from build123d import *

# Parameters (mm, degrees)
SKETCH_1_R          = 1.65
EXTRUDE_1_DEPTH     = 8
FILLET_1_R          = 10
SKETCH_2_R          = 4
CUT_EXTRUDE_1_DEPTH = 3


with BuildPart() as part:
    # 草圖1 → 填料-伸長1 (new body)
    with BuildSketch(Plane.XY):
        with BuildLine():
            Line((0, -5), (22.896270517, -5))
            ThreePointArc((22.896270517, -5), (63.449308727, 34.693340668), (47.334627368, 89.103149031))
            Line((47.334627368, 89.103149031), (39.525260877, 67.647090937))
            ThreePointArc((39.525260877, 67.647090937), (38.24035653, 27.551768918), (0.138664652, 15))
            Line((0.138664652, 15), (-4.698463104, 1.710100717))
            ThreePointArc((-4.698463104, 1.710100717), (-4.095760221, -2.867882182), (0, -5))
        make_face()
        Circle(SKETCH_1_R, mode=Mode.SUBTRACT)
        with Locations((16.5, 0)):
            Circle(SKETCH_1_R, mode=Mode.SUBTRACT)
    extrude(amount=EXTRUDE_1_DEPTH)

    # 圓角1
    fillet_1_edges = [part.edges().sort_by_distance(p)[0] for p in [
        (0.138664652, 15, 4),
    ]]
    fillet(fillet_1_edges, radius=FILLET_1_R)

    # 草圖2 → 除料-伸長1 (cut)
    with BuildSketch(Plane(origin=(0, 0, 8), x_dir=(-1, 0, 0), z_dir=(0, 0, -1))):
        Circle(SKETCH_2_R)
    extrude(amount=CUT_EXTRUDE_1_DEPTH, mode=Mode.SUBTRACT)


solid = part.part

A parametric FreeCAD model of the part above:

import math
import FreeCAD as App
import Part
import Sketcher

V = App.Vector
Q = App.Units.Quantity


def edges_at(feature, points):
    """Names of the edges that pass closest to the given points."""
    edges = feature.Shape.Edges
    near = lambda p: min(range(len(edges)), key=lambda i: edges[i].distToShape(Part.Vertex(*p))[0])
    return sorted({f"Edge{near(p) + 1}" for p in points})

doc = App.newDocument("Part")
params = doc.addObject("Spreadsheet::Sheet", "Params")
for row, (alias, value) in enumerate([
    ("sketch1_radius", "55 mm"),
    ("sketch1_radius2", "35 mm"),
    ("sketch1_radius3", "5 mm"),
    ("sketch1_diameter", "3.3 mm"),
    ("pad1_length", "8 mm"),
    ("fillet_radius", "10 mm"),
    ("sketch2_diameter", "8 mm"),
    ("pocket1_length", "3 mm"),
], start=1):
    params.set(f"A{row}", alias)
    params.set(f"B{row}", "=" + value)
    params.setAlias(f"B{row}", alias)

body = doc.addObject("PartDesign::Body", "Body")

# Sketch on XY plane
sketch1 = doc.addObject("Sketcher::SketchObject", "Sketch")
body.addObject(sketch1)
sketch1.AttachmentSupport = (doc.XY_Plane, [""])
sketch1.MapMode = "FlatFace"
sketch1.addGeometry(Part.LineSegment(V(0, -5, 0), V(22.9, -5, 0)), False)
sketch1.addGeometry(Part.ArcOfCircle(Part.Circle(V(10.2, 48.5, 0), V(0, 0, 1), 55), math.radians(-77), math.radians(48)), False)
sketch1.addGeometry(Part.LineSegment(V(47.3, 89.1, 0), V(39.5, 67.6, 0)), False)
sketch1.addGeometry(Part.ArcOfCircle(Part.Circle(V(10.2, 48.5, 0), V(0, 0, 1), 35), math.radians(-107), math.radians(33)), False)
sketch1.addGeometry(Part.LineSegment(V(0.1, 15, 0), V(-4.7, 1.7, 0)), False)
sketch1.addGeometry(Part.ArcOfCircle(Part.Circle(V(0, 0, 0), V(0, 0, 1), 5), math.radians(160), math.radians(270)), False)
sketch1.addGeometry(Part.Circle(V(0, 0, 0), V(0, 0, 1), 1.6), False)
sketch1.addGeometry(Part.Circle(V(16.5, 0, 0), V(0, 0, 1), 1.6), False)
sketch1.addConstraint(Sketcher.Constraint("Coincident", 0, 2, 1, 1))
sketch1.addConstraint(Sketcher.Constraint("Coincident", 1, 2, 2, 1))
sketch1.addConstraint(Sketcher.Constraint("Coincident", 2, 2, 3, 2))
sketch1.addConstraint(Sketcher.Constraint("Coincident", 3, 1, 4, 1))
sketch1.addConstraint(Sketcher.Constraint("Tangent", 4, 2, 5, 1))
sketch1.addConstraint(Sketcher.Constraint("Tangent", 5, 2, 0, 1))
sketch1.addConstraint(Sketcher.Constraint("Horizontal", 0))
sketch1.addConstraint(Sketcher.Constraint("Coincident", 5, 3, -1, 1))
sketch1.addConstraint(Sketcher.Constraint("Coincident", 6, 3, -1, 1))
sketch1.addConstraint(Sketcher.Constraint("Coincident", 3, 3, 1, 3))
sketch1.addConstraint(Sketcher.Constraint("Equal", 6, 7))
sketch1.addConstraint(Sketcher.Constraint("PointOnObject", 7, 3, -1))
sketch1.addConstraint(Sketcher.Constraint("Parallel", 2, 4))
sketch1.addConstraint(Sketcher.Constraint("Radius", 1, 55.0))
sketch1.addConstraint(Sketcher.Constraint("Radius", 3, 35.0))
sketch1.addConstraint(Sketcher.Constraint("Radius", 5, 5.0))
sketch1.addConstraint(Sketcher.Constraint("Diameter", 6, 3.3))
sketch1.addConstraint(Sketcher.Constraint("Angle", 2, Q("-110 deg")))
sketch1.addConstraint(Sketcher.Constraint("DistanceY", -1, 1, 3, 1, 15.0))
sketch1.addConstraint(Sketcher.Constraint("DistanceX", -1, 1, 7, 3, 16.5))
sketch1.addConstraint(Sketcher.Constraint("DistanceX", 0, 1, 0, 2, 22.896271))
sketch1.addConstraint(Sketcher.Constraint("Distance", 2, 22.83306))
sketch1.setExpression("Constraints[13]", "Params.sketch1_radius")
sketch1.setExpression("Constraints[14]", "Params.sketch1_radius2")
sketch1.setExpression("Constraints[15]", "Params.sketch1_radius3")
sketch1.setExpression("Constraints[16]", "Params.sketch1_diameter")
pad1 = doc.addObject("PartDesign::Pad", "Pad")
body.addObject(pad1)
pad1.Profile = sketch1
pad1.setExpression("Length", "Params.pad1_length")
doc.recompute()

fillet = doc.addObject("PartDesign::Fillet", "Fillet")
body.addObject(fillet)
fillet.Base = (pad1, edges_at(pad1, [(0.139, 15, 4)]))
fillet.setExpression("Radius", "Params.fillet_radius")

# Sketch on XY plane
sketch2 = doc.addObject("Sketcher::SketchObject", "Sketch001")
body.addObject(sketch2)
sketch2.AttachmentSupport = (doc.XY_Plane, [""])
sketch2.MapMode = "FlatFace"
sketch2.AttachmentOffset = App.Placement(V(0, 0, 8), App.Rotation())
sketch2.addGeometry(Part.Circle(V(0, 0, 0), V(0, 0, 1), 4), False)
sketch2.addConstraint(Sketcher.Constraint("Coincident", 0, 3, -1, 1))
sketch2.addConstraint(Sketcher.Constraint("Diameter", 0, 8.0))
sketch2.setExpression("Constraints[1]", "Params.sketch2_diameter")
pocket1 = doc.addObject("PartDesign::Pocket", "Pocket")
body.addObject(pocket1)
pocket1.Profile = sketch2
pocket1.setExpression("Length", "Params.pocket1_length")

doc.recompute()
